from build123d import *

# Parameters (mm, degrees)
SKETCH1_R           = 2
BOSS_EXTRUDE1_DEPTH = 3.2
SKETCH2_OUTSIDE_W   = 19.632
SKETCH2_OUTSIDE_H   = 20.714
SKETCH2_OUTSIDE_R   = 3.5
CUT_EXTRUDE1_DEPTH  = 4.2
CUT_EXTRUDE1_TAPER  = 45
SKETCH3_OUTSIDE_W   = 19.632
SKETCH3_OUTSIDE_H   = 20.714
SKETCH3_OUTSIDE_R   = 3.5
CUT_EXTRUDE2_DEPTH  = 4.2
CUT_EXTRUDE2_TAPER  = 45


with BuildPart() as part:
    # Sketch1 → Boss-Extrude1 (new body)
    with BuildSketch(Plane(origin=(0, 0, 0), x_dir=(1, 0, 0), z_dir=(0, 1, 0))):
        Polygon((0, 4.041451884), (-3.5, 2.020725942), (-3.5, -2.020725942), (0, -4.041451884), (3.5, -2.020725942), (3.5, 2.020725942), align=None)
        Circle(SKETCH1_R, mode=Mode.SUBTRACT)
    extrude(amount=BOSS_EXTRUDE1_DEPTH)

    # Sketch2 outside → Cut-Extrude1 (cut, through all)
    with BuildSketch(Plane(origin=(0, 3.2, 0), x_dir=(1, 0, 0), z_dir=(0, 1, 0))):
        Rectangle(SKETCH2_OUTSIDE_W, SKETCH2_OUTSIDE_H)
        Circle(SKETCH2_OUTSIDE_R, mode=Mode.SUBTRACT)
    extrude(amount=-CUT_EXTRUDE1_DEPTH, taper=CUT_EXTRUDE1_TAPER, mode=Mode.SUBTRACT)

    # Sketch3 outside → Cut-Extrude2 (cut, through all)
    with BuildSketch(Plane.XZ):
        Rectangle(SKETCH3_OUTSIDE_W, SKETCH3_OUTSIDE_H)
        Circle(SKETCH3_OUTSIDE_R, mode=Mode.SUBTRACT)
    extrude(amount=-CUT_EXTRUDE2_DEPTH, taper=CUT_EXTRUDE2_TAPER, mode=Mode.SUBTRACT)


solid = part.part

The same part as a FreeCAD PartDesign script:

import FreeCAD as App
import Part
import Sketcher

V = App.Vector
Q = App.Units.Quantity

doc = App.newDocument("Part")
params = doc.addObject("Spreadsheet::Sheet", "Params")
for row, (alias, value) in enumerate([
    ("sketch1_diameter", "4 mm"),
    ("pad1_length", "3.2 mm"),
    ("sketch2_diameter", "7 mm"),
    ("pocket1_length", "4.2 mm"),
    ("pocket1_taper", "45 deg"),
    ("sketch3_diameter", "7 mm"),
    ("pocket2_length", "4.2 mm"),
    ("pocket2_taper", "45 deg"),
], start=1):
    params.set(f"A{row}", alias)
    params.set(f"B{row}", "=" + value)
    params.setAlias(f"B{row}", alias)

body = doc.addObject("PartDesign::Body", "Body")

# Sketch on XZ plane
sketch1 = body.newObject("Sketcher::SketchObject", "Sketch")
sketch1.AttachmentSupport = (doc.getObject("XZ_Plane"), [""])
sketch1.MapMode = "FlatFace"
sketch1.addGeometry(Part.LineSegment(V(0, -4, 0), V(-3.5, -2, 0)), False)
sketch1.addGeometry(Part.LineSegment(V(-3.5, -2, 0), V(-3.5, 2, 0)), False)
sketch1.addGeometry(Part.LineSegment(V(-3.5, 2, 0), V(0, 4, 0)), False)
sketch1.addGeometry(Part.LineSegment(V(0, 4, 0), V(3.5, 2, 0)), False)
sketch1.addGeometry(Part.LineSegment(V(3.5, 2, 0), V(3.5, -2, 0)), False)
sketch1.addGeometry(Part.LineSegment(V(3.5, -2, 0), V(0, -4, 0)), False)
sketch1.addGeometry(Part.Circle(V(0, 0, 0), V(0, 0, 1), 2), False)
sketch1.addConstraint(Sketcher.Constraint("Coincident", 0, 2, 1, 1))
sketch1.addConstraint(Sketcher.Constraint("Coincident", 1, 2, 2, 1))
sketch1.addConstraint(Sketcher.Constraint("Coincident", 2, 2, 3, 1))
sketch1.addConstraint(Sketcher.Constraint("Coincident", 3, 2, 4, 1))
sketch1.addConstraint(Sketcher.Constraint("Coincident", 4, 2, 5, 1))
sketch1.addConstraint(Sketcher.Constraint("Coincident", 5, 2, 0, 1))
sketch1.addConstraint(Sketcher.Constraint("Vertical", 1))
sketch1.addConstraint(Sketcher.Constraint("Vertical", 4))
sketch1.addConstraint(Sketcher.Constraint("Coincident", 6, 3, -1, 1))
sketch1.addConstraint(Sketcher.Constraint("Symmetric", 0, 2, 3, 2, -1, 1))
sketch1.addConstraint(Sketcher.Constraint("Symmetric", 2, 2, 5, 2, -1, 1))
sketch1.addConstraint(Sketcher.Constraint("PointOnObject", 2, 2, -2))
sketch1.addConstraint(Sketcher.Constraint("Parallel", 2, 5))
sketch1.addConstraint(Sketcher.Constraint("Horizontal", 1, 2, 3, 2))
sketch1.addConstraint(Sketcher.Constraint("Diameter", 6, 4.0))
sketch1.addConstraint(Sketcher.Constraint("Angle", 0, Q("150 deg")))
sketch1.addConstraint(Sketcher.Constraint("DistanceX", 1, 2, 3, 2, 7.0))
sketch1.addConstraint(Sketcher.Constraint("DistanceY", 1, 1, 1, 2, 4.041452))
sketch1.setExpression("Constraints[14]", "Params.sketch1_diameter")
pad1 = body.newObject("PartDesign::Pad", "Pad")
pad1.Profile = sketch1
pad1.setExpression("Length", "Params.pad1_length")
pad1.Reversed = True

# Sketch on XZ plane
sketch2 = body.newObject("Sketcher::SketchObject", "Sketch001")
sketch2.AttachmentSupport = (doc.getObject("XZ_Plane"), [""])
sketch2.MapMode = "FlatFace"
sketch2.AttachmentOffset = App.Placement(V(0, 0, -3.2), App.Rotation())
sketch2.addGeometry(Part.LineSegment(V(-9.8, -10.4, 0), V(-9.8, 10.4, 0)), False)
sketch2.addGeometry(Part.LineSegment(V(-9.8, 10.4, 0), V(9.8, 10.4, 0)), False)
sketch2.addGeometry(Part.LineSegment(V(9.8, 10.4, 0), V(9.8, -10.4, 0)), False)
sketch2.addGeometry(Part.LineSegment(V(9.8, -10.4, 0), V(-9.8, -10.4, 0)), False)
sketch2.addGeometry(Part.Circle(V(0, 0, 0), V(0, 0, 1), 3.5), False)
sketch2.addConstraint(Sketcher.Constraint("Coincident", 0, 2, 1, 1))
sketch2.addConstraint(Sketcher.Constraint("Coincident", 1, 2, 2, 1))
sketch2.addConstraint(Sketcher.Constraint("Coincident", 2, 2, 3, 1))
sketch2.addConstraint(Sketcher.Constraint("Coincident", 3, 2, 0, 1))
sketch2.addConstraint(Sketcher.Constraint("Vertical", 0))
sketch2.addConstraint(Sketcher.Constraint("Horizontal", 1))
sketch2.addConstraint(Sketcher.Constraint("Vertical", 2))
sketch2.addConstraint(Sketcher.Constraint("Horizontal", 3))
sketch2.addConstraint(Sketcher.Constraint("Coincident", 4, 3, -1, 1))
sketch2.addConstraint(Sketcher.Constraint("Symmetric", 0, 2, 2, 2, -1, 1))
sketch2.addConstraint(Sketcher.Constraint("Diameter", 4, 7.0))
sketch2.addConstraint(Sketcher.Constraint("DistanceX", 1, 1, 1, 2, 19.632))
sketch2.addConstraint(Sketcher.Constraint("DistanceY", 0, 1, 0, 2, 20.714))
sketch2.setExpression("Constraints[10]", "Params.sketch2_diameter")
pocket1 = body.newObject("PartDesign::Pocket", "Pocket")
pocket1.Profile = sketch2
pocket1.setExpression("Length", "Params.pocket1_length")
pocket1.Reversed = True
pocket1.setExpression("TaperAngle", "Params.pocket1_taper")

# Sketch on XZ plane
sketch3 = body.newObject("Sketcher::SketchObject", "Sketch002")
sketch3.AttachmentSupport = (doc.getObject("XZ_Plane"), [""])
sketch3.MapMode = "FlatFace"
sketch3.addGeometry(Part.LineSegment(V(-9.8, 10.4, 0), V(-9.8, -10.4, 0)), False)
sketch3.addGeometry(Part.LineSegment(V(-9.8, -10.4, 0), V(9.8, -10.4, 0)), False)
sketch3.addGeometry(Part.LineSegment(V(9.8, -10.4, 0), V(9.8, 10.4, 0)), False)
sketch3.addGeometry(Part.LineSegment(V(9.8, 10.4, 0), V(-9.8, 10.4, 0)), False)
sketch3.addGeometry(Part.Circle(V(0, 0, 0), V(0, 0, 1), 3.5), False)
sketch3.addConstraint(Sketcher.Constraint("Coincident", 0, 2, 1, 1))
sketch3.addConstraint(Sketcher.Constraint("Coincident", 1, 2, 2, 1))
sketch3.addConstraint(Sketcher.Constraint("Coincident", 2, 2, 3, 1))
sketch3.addConstraint(Sketcher.Constraint("Coincident", 3, 2, 0, 1))
sketch3.addConstraint(Sketcher.Constraint("Vertical", 0))
sketch3.addConstraint(Sketcher.Constraint("Horizontal", 1))
sketch3.addConstraint(Sketcher.Constraint("Vertical", 2))
sketch3.addConstraint(Sketcher.Constraint("Horizontal", 3))
sketch3.addConstraint(Sketcher.Constraint("Coincident", 4, 3, -1, 1))
sketch3.addConstraint(Sketcher.Constraint("Symmetric", 0, 2, 2, 2, -1, 1))
sketch3.addConstraint(Sketcher.Constraint("Diameter", 4, 7.0))
sketch3.addConstraint(Sketcher.Constraint("DistanceX", 1, 1, 1, 2, 19.632))
sketch3.addConstraint(Sketcher.Constraint("DistanceY", 0, 2, 0, 1, 20.714))
sketch3.setExpression("Constraints[10]", "Params.sketch3_diameter")
pocket2 = body.newObject("PartDesign::Pocket", "Pocket001")
pocket2.Profile = sketch3
pocket2.setExpression("Length", "Params.pocket2_length")
pocket2.setExpression("TaperAngle", "Params.pocket2_taper")

doc.recompute()
